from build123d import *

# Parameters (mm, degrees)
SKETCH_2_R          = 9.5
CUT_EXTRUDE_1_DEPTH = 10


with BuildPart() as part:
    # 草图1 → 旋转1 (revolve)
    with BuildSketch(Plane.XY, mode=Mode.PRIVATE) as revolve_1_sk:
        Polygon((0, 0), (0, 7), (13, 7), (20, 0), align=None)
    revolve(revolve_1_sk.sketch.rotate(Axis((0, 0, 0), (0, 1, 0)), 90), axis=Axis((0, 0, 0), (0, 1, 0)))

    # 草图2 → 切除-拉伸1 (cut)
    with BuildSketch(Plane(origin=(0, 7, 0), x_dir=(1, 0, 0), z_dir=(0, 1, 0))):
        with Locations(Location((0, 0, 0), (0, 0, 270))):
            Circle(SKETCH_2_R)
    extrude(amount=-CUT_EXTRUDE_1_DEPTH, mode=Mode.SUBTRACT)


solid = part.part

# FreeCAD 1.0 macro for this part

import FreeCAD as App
import Part
import Sketcher
from FreeCAD import Vector
Q = App.Units.Quantity


def add_polygon(sketch, points):
    """Adds a closed chain of lines whose ends are joined by coincident constraints."""
    first, n = sketch.GeometryCount, len(points)
    for a, b in zip(points, points[1:] + points[:1]):
        sketch.addGeometry(Part.LineSegment(App.Vector(*a, 0), App.Vector(*b, 0)), False)
    for i in range(n):
        sketch.addConstraint(Sketcher.Constraint("Coincident", first + i, 2, first + (i + 1) % n, 1))

doc = App.newDocument("Part")
body = doc.addObject("PartDesign::Body", "Body")

# Sketch on XY plane
sketch1 = body.newObject("Sketcher::SketchObject", "Sketch")
sketch1.AttachmentSupport = (doc.getObject("XY_Plane"), [""])
sketch1.MapMode = "FlatFace"
add_polygon(sketch1, [(0, 7), (0, 0), (20, 0), (13, 7)])  # lines 0-3
sketch1.addConstraint(Sketcher.Constraint("Vertical", 0))
sketch1.addConstraint(Sketcher.Constraint("Horizontal", 1))
sketch1.addConstraint(Sketcher.Constraint("Horizontal", 3))
sketch1.addConstraint(Sketcher.Constraint("Coincident", 0, 2, -1, 1))
sketch1.addConstraint(Sketcher.Constraint("DistanceX", 1, 1, 1, 2, Q("20 mm")))
sketch1.addConstraint(Sketcher.Constraint("DistanceX", 3, 2, 3, 1, Q("13 mm")))
sketch1.addConstraint(Sketcher.Constraint("DistanceY", 0, 2, 0, 1, Q("7 mm")))
revolution = body.newObject("PartDesign::Revolution", "Revolution")
revolution.Profile = sketch1
revolution.ReferenceAxis = (sketch1, ["V_Axis"])
revolution.Angle = 360

# Sketch on XZ plane
sketch2 = body.newObject("Sketcher::SketchObject", "Sketch001")
sketch2.AttachmentSupport = (doc.getObject("XZ_Plane"), [""])
sketch2.MapMode = "FlatFace"
sketch2.AttachmentOffset = App.Placement(Vector(0, 0, -7), App.Rotation())
sketch2.addGeometry(Part.Circle(Vector(0, 0, 0), Vector(0, 0, 1), 9.5), False)
sketch2.addConstraint(Sketcher.Constraint("Coincident", 0, 3, -1, 1))
sketch2.addConstraint(Sketcher.Constraint("Diameter", 0, Q("19 mm")))
pocket1 = body.newObject("PartDesign::Pocket", "Pocket")
pocket1.Profile = sketch2
pocket1.Length = 10
pocket1.Reversed = True

doc.recompute()
